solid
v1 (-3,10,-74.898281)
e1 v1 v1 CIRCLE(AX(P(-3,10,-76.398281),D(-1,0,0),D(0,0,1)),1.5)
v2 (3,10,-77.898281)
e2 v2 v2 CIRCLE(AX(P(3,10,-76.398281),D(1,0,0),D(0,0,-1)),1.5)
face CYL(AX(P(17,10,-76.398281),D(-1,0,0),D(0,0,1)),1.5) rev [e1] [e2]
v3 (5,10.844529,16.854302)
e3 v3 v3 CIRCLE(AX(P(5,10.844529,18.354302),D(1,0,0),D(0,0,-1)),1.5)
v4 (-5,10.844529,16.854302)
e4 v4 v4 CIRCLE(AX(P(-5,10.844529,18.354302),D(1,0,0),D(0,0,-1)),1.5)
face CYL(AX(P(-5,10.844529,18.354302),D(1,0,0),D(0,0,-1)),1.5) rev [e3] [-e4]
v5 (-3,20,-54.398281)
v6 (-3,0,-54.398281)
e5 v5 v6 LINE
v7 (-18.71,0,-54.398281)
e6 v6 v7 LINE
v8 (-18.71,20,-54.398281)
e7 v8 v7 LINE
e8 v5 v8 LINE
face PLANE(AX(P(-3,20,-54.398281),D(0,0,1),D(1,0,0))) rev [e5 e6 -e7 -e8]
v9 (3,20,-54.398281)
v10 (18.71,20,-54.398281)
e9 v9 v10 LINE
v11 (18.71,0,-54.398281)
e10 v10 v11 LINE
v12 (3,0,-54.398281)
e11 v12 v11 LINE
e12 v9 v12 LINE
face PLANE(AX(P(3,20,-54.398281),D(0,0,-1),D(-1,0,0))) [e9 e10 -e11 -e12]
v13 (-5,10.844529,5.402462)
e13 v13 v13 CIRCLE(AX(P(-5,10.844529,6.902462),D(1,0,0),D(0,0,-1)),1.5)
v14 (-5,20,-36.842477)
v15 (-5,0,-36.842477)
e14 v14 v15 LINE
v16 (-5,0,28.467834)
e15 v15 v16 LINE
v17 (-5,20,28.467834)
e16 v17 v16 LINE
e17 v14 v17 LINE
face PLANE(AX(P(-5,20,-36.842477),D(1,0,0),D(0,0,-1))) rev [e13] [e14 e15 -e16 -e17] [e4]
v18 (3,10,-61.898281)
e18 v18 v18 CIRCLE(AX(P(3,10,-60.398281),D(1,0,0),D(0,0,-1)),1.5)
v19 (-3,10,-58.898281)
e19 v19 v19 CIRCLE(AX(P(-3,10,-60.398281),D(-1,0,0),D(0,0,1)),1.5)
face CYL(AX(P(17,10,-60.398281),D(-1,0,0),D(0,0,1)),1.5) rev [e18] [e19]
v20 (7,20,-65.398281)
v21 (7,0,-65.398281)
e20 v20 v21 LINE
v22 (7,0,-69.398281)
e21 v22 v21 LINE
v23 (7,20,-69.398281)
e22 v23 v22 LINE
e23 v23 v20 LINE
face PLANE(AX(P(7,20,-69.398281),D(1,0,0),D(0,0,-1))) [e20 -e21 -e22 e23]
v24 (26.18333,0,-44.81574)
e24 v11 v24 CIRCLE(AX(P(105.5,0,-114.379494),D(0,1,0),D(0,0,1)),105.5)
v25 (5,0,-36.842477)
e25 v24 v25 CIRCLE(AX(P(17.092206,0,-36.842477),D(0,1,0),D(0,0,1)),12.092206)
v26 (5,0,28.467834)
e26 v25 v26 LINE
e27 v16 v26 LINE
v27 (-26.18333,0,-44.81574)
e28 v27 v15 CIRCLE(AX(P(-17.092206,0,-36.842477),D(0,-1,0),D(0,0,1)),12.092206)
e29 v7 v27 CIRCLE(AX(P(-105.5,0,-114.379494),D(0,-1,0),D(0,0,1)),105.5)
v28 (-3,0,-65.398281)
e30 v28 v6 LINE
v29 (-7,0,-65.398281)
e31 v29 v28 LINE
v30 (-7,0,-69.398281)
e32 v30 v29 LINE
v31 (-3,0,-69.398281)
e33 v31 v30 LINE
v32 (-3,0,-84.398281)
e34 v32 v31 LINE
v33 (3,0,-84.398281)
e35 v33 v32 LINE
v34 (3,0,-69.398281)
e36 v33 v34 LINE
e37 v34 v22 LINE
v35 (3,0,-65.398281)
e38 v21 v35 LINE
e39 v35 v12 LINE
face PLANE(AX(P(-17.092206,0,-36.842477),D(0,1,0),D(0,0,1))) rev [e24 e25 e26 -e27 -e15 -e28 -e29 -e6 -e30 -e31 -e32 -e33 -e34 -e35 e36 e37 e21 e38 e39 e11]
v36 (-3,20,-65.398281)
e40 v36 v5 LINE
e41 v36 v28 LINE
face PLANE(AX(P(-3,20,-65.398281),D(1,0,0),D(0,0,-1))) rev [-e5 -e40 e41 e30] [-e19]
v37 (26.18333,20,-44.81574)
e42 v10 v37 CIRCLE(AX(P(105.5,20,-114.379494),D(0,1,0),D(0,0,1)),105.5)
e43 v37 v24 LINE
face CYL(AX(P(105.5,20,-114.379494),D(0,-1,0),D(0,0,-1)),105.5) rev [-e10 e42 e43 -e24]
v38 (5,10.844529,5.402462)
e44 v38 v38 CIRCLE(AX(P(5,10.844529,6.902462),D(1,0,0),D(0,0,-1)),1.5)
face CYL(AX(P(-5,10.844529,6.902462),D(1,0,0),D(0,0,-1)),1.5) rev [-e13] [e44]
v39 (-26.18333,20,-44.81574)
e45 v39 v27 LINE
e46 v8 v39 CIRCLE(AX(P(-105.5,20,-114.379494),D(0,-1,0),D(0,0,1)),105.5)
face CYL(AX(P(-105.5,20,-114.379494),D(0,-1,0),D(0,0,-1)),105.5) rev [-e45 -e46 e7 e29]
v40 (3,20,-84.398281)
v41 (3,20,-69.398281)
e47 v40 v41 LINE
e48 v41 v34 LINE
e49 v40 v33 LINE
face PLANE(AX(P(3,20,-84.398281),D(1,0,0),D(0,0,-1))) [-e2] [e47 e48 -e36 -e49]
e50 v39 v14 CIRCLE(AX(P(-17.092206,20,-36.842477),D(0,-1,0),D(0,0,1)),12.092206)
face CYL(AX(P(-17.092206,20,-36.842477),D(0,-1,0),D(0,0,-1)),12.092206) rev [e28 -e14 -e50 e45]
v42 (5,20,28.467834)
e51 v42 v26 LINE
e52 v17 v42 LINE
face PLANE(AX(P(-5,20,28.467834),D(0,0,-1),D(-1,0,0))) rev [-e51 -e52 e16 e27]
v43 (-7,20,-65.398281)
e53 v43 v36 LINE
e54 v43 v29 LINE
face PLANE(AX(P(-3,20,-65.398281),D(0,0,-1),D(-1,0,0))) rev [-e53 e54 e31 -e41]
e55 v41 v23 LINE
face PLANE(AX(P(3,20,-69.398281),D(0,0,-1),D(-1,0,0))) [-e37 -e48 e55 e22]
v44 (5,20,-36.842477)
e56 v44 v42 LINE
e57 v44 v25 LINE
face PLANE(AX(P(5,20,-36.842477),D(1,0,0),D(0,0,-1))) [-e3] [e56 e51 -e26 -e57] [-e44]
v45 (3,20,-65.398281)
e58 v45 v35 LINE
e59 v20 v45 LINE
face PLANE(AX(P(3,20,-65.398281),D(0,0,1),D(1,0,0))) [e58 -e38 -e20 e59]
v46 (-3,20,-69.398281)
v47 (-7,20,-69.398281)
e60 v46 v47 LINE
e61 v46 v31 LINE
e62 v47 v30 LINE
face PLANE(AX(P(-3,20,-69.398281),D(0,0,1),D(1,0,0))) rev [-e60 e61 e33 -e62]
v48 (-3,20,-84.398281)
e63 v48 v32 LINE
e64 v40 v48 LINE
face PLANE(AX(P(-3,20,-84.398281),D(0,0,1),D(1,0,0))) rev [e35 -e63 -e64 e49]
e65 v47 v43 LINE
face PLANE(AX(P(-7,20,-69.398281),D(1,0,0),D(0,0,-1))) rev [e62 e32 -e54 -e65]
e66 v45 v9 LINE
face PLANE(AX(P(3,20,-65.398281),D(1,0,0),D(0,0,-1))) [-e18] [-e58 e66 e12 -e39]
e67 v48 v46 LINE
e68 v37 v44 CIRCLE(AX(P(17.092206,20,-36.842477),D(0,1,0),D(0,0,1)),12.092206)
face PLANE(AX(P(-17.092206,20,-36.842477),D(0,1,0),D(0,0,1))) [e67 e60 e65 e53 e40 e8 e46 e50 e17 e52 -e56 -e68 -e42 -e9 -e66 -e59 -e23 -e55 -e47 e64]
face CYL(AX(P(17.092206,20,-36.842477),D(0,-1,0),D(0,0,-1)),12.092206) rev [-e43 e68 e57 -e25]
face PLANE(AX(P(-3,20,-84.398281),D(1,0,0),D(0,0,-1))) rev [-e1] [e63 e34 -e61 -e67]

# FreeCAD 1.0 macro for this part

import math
import FreeCAD as App
import Part
import Sketcher

V = App.Vector

doc = App.newDocument("Part")
body = doc.addObject("PartDesign::Body", "Body")

# Sketch on XZ plane
sketch1 = doc.addObject("Sketcher::SketchObject", "Sketch")
body.addObject(sketch1)
sketch1.AttachmentSupport = (doc.XZ_Plane, [""])
sketch1.MapMode = "FlatFace"
sketch1.addGeometry([
    Part.LineSegment(V(-3, -84.4, 0), V(-3, -69.4, 0)),  # 0
    Part.LineSegment(V(-3, -69.4, 0), V(-7, -69.4, 0)),  # 1
    Part.LineSegment(V(-7, -69.4, 0), V(-7, -65.4, 0)),  # 2
    Part.LineSegment(V(-7, -65.4, 0), V(-3, -65.4, 0)),  # 3
    Part.LineSegment(V(-3, -65.4, 0), V(-3, -54.4, 0)),  # 4
    Part.LineSegment(V(-3, -54.4, 0), V(-18.7, -54.4, 0)),  # 5
    Part.ArcOfCircle(Part.Circle(V(-105.5, -114.4, 0), V(0, 0, 1), 105.5), math.radians(34.65), math.radians(41.25)),  # 6
    Part.ArcOfCircle(Part.Circle(V(-17.1, -36.8, 0), V(0, 0, 1), 12.1), math.radians(-139), math.radians(0)),  # 7
    Part.LineSegment(V(-5, -36.8, 0), V(-5, 28.5, 0)),  # 8
    Part.LineSegment(V(-5, 28.5, 0), V(0, 28.5, 0)),  # 9
    Part.LineSegment(V(0, 28.5, 0), V(0, -84.4, 0)),  # 10
    Part.LineSegment(V(0, -84.4, 0), V(-3, -84.4, 0)),  # 11
], False)
sketch1.addConstraint([
    Sketcher.Constraint("Coincident", 0, 2, 1, 1),
    Sketcher.Constraint("Coincident", 1, 2, 2, 1),
    Sketcher.Constraint("Coincident", 2, 2, 3, 1),
    Sketcher.Constraint("Coincident", 3, 2, 4, 1),
    Sketcher.Constraint("Coincident", 4, 2, 5, 1),
    Sketcher.Constraint("Coincident", 5, 2, 6, 1),
    Sketcher.Constraint("Tangent", 6, 2, 7, 1),
    Sketcher.Constraint("Tangent", 7, 2, 8, 1),
    Sketcher.Constraint("Coincident", 8, 2, 9, 1),
    Sketcher.Constraint("Coincident", 9, 2, 10, 1),
    Sketcher.Constraint("Coincident", 10, 2, 11, 1),
    Sketcher.Constraint("Coincident", 11, 2, 0, 1),
    Sketcher.Constraint("Vertical", 0),
    Sketcher.Constraint("Horizontal", 1),
    Sketcher.Constraint("Vertical", 2),
    Sketcher.Constraint("Horizontal", 3),
    Sketcher.Constraint("Vertical", 4),
    Sketcher.Constraint("Horizontal", 5),
    Sketcher.Constraint("Vertical", 8),
    Sketcher.Constraint("Horizontal", 9),
    Sketcher.Constraint("Vertical", 10),
    Sketcher.Constraint("Horizontal", 11),
    Sketcher.Constraint("PointOnObject", 9, 2, -2),
    Sketcher.Constraint("Vertical", 0, 2, 3, 2),
    Sketcher.Constraint("Equal", 3, 2),
    Sketcher.Constraint("Radius", 6, 105.5),
    Sketcher.Constraint("DistanceX", 1, 2, 1, 1, 4.0),
    Sketcher.Constraint("DistanceX", 9, 1, 9, 2, 5.0),
    Sketcher.Constraint("DistanceX", 11, 2, 11, 1, 3.0),
    Sketcher.Constraint("DistanceY", 0, 1, 0, 2, 15.0),
    Sketcher.Constraint("DistanceY", 4, 1, 4, 2, 11.0),
    Sketcher.Constraint("DistanceX", 5, 2, 5, 1, 15.71),
    Sketcher.Constraint("DistanceX", 6, 3, -1, 1, 105.5),
    Sketcher.Constraint("Radius", 7, 12.092206),
    Sketcher.Constraint("DistanceY", 8, 1, 8, 2, 65.310311),
    Sketcher.Constraint("DistanceY", 0, 2, -1, 1, 69.398281),
])
pad1 = doc.addObject("PartDesign::Pad", "Pad")
body.addObject(pad1)
pad1.Profile = sketch1
pad1.Length = 20
pad1.Reversed = True
doc.recompute()

mirrored = doc.addObject("PartDesign::Mirrored", "Mirrored")
body.addObject(mirrored)
mirrored.Originals = [pad1]
mirrored.MirrorPlane = (doc.YZ_Plane, [""])
body.Tip = mirrored

# Sketch on YZ plane
sketch2 = doc.addObject("Sketcher::SketchObject", "Sketch001")
body.addObject(sketch2)
sketch2.AttachmentSupport = (doc.YZ_Plane, [""])
sketch2.MapMode = "FlatFace"
sketch2.AttachmentOffset = App.Placement(V(0, 0, -3), App.Rotation())
sketch2.addGeometry([
    Part.Circle(V(10, -76.4, 0), V(0, 0, 1), 1.5),
    Part.Circle(V(10, -60.4, 0), V(0, 0, 1), 1.5),
], False)
sketch2.addConstraint([
    Sketcher.Constraint("Equal", 0, 1),
    Sketcher.Constraint("Vertical", 0, 3, 1, 3),
    Sketcher.Constraint("Diameter", 0, 3.0),
    Sketcher.Constraint("DistanceX", -1, 1, 0, 3, 10.0),
    Sketcher.Constraint("DistanceY", 0, 3, 1, 3, 16.0),
    Sketcher.Constraint("DistanceY", 0, 3, -1, 1, 76.398281),
])
pocket1 = doc.addObject("PartDesign::Pocket", "Pocket")
body.addObject(pocket1)
pocket1.Profile = sketch2
pocket1.Length = 20
pocket1.Reversed = True

# Sketch on YZ plane
sketch3 = doc.addObject("Sketcher::SketchObject", "Sketch002")
body.addObject(sketch3)
sketch3.AttachmentSupport = (doc.YZ_Plane, [""])
sketch3.MapMode = "FlatFace"
sketch3.AttachmentOffset = App.Placement(V(0, 0, 5), App.Rotation())
sketch3.addGeometry(Part.Circle(V(10.8, 18.4, 0), V(0, 0, 1), 1.5), False)
sketch3.addConstraint([
    Sketcher.Constraint("Diameter", 0, 3.0),
    Sketcher.Constraint("DistanceY", -1, 1, 0, 3, 18.354302),
    Sketcher.Constraint("DistanceX", -1, 1, 0, 3, 10.844529),
])
pocket2 = doc.addObject("PartDesign::Pocket", "Pocket001")
body.addObject(pocket2)
pocket2.Profile = sketch3
pocket2.Length = 10

# Sketch on YZ plane
sketch4 = doc.addObject("Sketcher::SketchObject", "Sketch003")
body.addObject(sketch4)
sketch4.AttachmentSupport = (doc.YZ_Plane, [""])
sketch4.MapMode = "FlatFace"
sketch4.AttachmentOffset = App.Placement(V(0, 0, 5), App.Rotation())
sketch4.addGeometry(Part.Circle(V(10.8, 6.9, 0), V(0, 0, 1), 1.5), False)
sketch4.addConstraint([
    Sketcher.Constraint("Diameter", 0, 3.0),
    Sketcher.Constraint("DistanceX", -1, 1, 0, 3, 10.844529),
    Sketcher.Constraint("DistanceY", -1, 1, 0, 3, 6.902462),
])
pocket3 = doc.addObject("PartDesign::Pocket", "Pocket002")
body.addObject(pocket3)
pocket3.Profile = sketch4
pocket3.Length = 10

doc.recompute()
